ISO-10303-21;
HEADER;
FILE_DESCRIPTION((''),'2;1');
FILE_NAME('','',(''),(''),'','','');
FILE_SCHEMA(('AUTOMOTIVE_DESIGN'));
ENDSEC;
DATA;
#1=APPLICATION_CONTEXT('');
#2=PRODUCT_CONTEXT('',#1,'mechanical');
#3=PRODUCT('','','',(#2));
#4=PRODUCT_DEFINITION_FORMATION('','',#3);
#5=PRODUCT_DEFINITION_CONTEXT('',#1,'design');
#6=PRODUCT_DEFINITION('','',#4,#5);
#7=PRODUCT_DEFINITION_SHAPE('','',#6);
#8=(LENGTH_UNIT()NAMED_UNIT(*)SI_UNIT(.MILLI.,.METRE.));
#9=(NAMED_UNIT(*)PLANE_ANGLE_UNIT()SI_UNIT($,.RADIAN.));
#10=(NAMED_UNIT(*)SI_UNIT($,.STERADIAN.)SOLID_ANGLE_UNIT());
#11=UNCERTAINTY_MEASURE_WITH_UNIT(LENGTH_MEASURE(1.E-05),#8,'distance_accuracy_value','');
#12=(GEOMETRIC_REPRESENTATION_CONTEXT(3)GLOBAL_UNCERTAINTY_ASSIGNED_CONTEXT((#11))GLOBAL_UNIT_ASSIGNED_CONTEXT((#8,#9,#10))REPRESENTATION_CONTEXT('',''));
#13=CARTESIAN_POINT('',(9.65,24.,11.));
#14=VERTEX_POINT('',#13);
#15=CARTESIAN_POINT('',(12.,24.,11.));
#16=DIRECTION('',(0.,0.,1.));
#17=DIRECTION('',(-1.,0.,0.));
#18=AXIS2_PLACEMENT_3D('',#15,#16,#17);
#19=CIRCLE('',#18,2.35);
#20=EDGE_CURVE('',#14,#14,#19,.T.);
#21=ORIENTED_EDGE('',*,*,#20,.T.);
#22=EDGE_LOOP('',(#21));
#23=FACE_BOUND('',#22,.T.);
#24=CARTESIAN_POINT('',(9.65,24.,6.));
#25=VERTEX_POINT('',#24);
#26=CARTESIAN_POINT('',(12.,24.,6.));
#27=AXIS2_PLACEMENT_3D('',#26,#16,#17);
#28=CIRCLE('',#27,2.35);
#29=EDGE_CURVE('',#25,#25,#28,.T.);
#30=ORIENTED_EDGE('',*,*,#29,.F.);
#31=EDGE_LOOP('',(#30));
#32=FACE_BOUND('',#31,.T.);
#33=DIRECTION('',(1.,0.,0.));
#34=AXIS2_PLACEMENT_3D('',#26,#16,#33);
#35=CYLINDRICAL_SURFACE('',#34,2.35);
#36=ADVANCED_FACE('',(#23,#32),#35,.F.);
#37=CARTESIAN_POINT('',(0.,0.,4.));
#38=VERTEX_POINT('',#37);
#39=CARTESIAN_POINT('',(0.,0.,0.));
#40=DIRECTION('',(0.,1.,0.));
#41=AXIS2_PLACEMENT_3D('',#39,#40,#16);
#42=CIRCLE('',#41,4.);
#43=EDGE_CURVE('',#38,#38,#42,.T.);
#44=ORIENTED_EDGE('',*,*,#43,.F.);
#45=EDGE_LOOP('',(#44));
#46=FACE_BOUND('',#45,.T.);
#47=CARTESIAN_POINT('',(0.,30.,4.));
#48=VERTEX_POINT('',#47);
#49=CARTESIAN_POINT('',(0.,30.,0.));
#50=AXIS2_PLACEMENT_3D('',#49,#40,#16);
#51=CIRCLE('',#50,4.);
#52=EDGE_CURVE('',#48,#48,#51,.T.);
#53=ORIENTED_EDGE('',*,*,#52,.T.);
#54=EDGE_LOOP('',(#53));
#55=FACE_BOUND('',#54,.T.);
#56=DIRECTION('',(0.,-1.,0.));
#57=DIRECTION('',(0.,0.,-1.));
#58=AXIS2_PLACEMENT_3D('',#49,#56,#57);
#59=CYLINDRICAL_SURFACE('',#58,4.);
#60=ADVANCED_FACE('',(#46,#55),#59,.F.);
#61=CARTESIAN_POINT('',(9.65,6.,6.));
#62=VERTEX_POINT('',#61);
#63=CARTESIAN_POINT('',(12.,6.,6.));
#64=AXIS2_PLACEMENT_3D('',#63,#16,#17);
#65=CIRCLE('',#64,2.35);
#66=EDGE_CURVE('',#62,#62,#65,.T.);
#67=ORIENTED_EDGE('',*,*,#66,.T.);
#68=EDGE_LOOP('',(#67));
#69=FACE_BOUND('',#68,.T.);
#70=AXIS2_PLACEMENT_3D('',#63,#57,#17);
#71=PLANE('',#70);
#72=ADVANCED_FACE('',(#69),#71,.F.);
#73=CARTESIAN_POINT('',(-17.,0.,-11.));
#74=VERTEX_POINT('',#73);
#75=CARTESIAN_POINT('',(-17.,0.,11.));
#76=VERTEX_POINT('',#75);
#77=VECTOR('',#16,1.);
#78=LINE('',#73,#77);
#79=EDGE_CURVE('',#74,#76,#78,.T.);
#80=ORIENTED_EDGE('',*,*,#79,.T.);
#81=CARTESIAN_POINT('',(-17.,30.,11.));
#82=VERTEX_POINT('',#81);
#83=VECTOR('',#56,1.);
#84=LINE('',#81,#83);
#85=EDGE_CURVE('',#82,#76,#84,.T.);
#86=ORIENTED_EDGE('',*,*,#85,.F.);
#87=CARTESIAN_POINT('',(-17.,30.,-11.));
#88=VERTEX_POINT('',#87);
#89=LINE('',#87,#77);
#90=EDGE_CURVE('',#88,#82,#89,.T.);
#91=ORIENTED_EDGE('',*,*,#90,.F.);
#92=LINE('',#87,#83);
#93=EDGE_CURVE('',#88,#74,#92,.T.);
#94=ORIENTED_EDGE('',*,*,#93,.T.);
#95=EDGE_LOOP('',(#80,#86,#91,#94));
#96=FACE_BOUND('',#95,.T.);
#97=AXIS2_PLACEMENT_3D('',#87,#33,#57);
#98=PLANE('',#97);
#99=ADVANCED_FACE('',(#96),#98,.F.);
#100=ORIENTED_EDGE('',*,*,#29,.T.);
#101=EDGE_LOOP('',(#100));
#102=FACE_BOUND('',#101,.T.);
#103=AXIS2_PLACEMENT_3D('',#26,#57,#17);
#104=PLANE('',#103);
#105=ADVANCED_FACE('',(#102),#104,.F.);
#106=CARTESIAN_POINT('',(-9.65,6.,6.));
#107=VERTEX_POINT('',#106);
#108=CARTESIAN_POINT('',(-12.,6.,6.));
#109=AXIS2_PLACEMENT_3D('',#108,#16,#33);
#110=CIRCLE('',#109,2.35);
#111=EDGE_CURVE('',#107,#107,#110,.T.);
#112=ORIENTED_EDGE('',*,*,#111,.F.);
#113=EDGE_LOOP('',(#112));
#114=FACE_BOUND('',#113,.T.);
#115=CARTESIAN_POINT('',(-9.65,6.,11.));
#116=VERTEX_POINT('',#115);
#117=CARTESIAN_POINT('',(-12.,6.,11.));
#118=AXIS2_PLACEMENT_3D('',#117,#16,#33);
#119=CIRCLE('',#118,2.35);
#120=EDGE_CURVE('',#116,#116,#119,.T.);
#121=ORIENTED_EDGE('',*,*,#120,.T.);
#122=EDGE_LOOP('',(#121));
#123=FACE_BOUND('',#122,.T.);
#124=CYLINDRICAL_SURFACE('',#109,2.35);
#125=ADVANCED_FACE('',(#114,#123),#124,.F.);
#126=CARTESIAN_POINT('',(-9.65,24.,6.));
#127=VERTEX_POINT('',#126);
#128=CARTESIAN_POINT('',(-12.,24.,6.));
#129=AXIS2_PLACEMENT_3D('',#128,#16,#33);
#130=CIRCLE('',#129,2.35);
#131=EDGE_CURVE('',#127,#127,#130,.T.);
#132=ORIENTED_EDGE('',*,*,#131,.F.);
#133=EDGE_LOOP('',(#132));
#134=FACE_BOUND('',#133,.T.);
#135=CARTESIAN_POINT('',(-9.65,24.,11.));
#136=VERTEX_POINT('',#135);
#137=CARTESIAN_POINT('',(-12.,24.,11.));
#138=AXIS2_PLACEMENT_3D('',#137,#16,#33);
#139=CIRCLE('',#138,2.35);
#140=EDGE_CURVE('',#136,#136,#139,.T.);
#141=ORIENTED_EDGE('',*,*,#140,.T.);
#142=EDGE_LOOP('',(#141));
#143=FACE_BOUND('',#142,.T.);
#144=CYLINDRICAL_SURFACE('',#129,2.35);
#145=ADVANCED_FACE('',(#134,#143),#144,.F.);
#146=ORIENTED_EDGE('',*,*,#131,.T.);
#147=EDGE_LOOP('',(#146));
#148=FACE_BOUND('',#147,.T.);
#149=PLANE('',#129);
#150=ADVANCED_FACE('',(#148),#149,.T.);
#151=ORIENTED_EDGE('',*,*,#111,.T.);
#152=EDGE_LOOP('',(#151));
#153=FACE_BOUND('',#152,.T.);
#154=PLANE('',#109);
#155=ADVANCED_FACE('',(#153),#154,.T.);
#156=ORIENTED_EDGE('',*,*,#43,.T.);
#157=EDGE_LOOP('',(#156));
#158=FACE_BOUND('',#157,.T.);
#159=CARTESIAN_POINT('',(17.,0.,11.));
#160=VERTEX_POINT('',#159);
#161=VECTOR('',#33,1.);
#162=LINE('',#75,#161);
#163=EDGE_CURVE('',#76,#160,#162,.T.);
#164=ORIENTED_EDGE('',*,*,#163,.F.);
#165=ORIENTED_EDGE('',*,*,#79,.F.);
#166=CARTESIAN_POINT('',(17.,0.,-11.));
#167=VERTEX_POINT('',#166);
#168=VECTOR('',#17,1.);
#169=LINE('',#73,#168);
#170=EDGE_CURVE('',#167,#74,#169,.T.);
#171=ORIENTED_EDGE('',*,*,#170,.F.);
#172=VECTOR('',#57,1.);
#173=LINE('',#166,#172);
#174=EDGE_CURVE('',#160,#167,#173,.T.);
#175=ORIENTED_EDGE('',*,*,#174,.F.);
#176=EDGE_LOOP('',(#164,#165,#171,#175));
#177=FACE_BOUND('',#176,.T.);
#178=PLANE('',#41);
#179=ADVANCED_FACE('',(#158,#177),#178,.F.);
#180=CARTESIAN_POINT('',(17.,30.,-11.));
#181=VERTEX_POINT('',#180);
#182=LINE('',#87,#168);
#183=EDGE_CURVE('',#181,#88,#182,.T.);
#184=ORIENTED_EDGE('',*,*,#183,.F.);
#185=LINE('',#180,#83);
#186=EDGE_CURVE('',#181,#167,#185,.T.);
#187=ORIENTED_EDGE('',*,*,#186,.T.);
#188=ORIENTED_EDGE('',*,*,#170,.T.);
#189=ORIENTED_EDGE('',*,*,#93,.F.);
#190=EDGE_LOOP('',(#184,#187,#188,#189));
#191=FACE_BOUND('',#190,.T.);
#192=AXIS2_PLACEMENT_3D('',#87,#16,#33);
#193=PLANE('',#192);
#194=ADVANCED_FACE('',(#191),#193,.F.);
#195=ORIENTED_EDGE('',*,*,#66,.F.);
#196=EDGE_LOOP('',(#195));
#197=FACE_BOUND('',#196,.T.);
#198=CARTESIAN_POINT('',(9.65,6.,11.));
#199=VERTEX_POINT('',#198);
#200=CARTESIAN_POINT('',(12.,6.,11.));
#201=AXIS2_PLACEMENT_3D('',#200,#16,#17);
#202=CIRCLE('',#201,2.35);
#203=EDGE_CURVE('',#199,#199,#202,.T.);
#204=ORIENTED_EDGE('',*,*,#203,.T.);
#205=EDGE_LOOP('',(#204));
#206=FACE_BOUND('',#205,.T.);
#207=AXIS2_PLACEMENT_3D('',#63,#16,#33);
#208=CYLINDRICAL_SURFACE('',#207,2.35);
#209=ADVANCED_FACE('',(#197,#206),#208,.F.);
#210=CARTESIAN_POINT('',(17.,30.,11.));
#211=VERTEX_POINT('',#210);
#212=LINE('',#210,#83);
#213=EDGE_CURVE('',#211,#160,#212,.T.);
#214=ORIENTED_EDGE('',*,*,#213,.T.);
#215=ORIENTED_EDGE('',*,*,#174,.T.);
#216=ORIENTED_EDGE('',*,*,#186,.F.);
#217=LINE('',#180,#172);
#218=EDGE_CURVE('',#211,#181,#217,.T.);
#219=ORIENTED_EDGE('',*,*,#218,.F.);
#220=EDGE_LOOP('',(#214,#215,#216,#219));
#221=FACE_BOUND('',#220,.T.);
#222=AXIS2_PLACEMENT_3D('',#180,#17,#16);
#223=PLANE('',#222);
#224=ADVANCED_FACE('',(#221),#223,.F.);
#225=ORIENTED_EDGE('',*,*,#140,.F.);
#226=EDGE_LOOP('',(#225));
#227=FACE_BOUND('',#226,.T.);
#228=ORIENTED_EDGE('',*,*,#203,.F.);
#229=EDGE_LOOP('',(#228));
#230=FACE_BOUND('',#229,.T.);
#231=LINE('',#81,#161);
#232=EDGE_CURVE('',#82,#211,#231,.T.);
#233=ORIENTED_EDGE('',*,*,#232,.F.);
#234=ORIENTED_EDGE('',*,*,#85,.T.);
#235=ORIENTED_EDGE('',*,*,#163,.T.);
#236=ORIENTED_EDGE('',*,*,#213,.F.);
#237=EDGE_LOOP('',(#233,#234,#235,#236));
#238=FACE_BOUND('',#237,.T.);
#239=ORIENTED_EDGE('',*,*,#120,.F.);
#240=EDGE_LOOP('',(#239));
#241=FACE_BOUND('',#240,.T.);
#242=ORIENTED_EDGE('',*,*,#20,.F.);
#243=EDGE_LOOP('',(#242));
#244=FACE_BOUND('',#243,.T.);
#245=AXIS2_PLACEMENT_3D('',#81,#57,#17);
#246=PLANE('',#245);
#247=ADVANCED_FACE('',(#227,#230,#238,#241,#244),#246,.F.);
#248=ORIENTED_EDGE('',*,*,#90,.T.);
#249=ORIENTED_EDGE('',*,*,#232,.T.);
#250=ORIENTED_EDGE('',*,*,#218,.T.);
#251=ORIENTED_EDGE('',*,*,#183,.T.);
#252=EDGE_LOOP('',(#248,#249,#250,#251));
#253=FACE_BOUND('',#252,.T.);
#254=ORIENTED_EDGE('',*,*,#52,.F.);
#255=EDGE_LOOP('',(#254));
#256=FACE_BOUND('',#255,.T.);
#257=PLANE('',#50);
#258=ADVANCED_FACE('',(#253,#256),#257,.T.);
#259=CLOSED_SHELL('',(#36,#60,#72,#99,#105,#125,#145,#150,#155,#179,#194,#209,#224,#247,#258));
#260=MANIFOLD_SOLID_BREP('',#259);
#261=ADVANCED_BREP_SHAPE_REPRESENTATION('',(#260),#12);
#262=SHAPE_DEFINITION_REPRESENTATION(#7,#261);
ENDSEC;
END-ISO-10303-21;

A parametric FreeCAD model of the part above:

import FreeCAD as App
import Part
import Sketcher
from FreeCAD import Vector

doc = App.newDocument("Part")
body = doc.addObject("PartDesign::Body", "Body")

# Sketch on XZ plane
sketch1 = doc.addObject("Sketcher::SketchObject", "Sketch")
body.addObject(sketch1)
sketch1.AttachmentSupport = (doc.XZ_Plane, [""])
sketch1.MapMode = "FlatFace"
sketch1.addGeometry([
    Part.LineSegment(Vector(-17, -11, 0), Vector(-17, 11, 0)),  # 0
    Part.LineSegment(Vector(-17, 11, 0), Vector(17, 11, 0)),  # 1
    Part.LineSegment(Vector(17, 11, 0), Vector(17, -11, 0)),  # 2
    Part.LineSegment(Vector(17, -11, 0), Vector(-17, -11, 0)),  # 3
    Part.Circle(Vector(0, 0, 0), Vector(0, 0, 1), 4),  # 4
], False)
sketch1.addConstraint([
    Sketcher.Constraint("Coincident", 0, 2, 1, 1),
    Sketcher.Constraint("Coincident", 1, 2, 2, 1),
    Sketcher.Constraint("Coincident", 2, 2, 3, 1),
    Sketcher.Constraint("Coincident", 3, 2, 0, 1),
    Sketcher.Constraint("Vertical", 0),
    Sketcher.Constraint("Horizontal", 1),
    Sketcher.Constraint("Vertical", 2),
    Sketcher.Constraint("Horizontal", 3),
    Sketcher.Constraint("Coincident", 4, 3, -1, 1),
    Sketcher.Constraint("Symmetric", 0, 2, 2, 2, -1, 1),
    Sketcher.Constraint("Diameter", 4, 8.0),
    Sketcher.Constraint("DistanceX", 1, 1, 1, 2, 34.0),
    Sketcher.Constraint("DistanceY", 0, 1, 0, 2, 22.0),
])
pad1 = doc.addObject("PartDesign::Pad", "Pad")
body.addObject(pad1)
pad1.Profile = sketch1
pad1.Length = 30
pad1.Reversed = True

# Sketch on XY plane
sketch2 = doc.addObject("Sketcher::SketchObject", "Sketch001")
body.addObject(sketch2)
sketch2.AttachmentSupport = (doc.XY_Plane, [""])
sketch2.MapMode = "FlatFace"
sketch2.AttachmentOffset = App.Placement(Vector(0, 0, 11), App.Rotation())
sketch2.addGeometry([
    Part.Circle(Vector(-12, 24, 0), Vector(0, 0, 1), 2.4),
    Part.Circle(Vector(-12, 6, 0), Vector(0, 0, 1), 2.4),
    Part.Circle(Vector(12, 6, 0), Vector(0, 0, 1), 2.4),
    Part.Circle(Vector(12, 24, 0), Vector(0, 0, 1), 2.4),
], False)
sketch2.addConstraint([
    Sketcher.Constraint("Equal", 0, 1),
    Sketcher.Constraint("Equal", 1, 2),
    Sketcher.Constraint("Equal", 2, 3),
    Sketcher.Constraint("Symmetric", 1, 3, 2, 3, -2),
    Sketcher.Constraint("Symmetric", 0, 3, 3, 3, -2),
    Sketcher.Constraint("Vertical", 0, 3, 1, 3),
    Sketcher.Constraint("Diameter", 0, 4.7),
    Sketcher.Constraint("DistanceX", 0, 3, -1, 1, 12.0),
    Sketcher.Constraint("DistanceY", -1, 1, 0, 3, 24.0),
    Sketcher.Constraint("DistanceY", -1, 1, 1, 3, 6.0),
])
pocket1 = doc.addObject("PartDesign::Pocket", "Pocket")
body.addObject(pocket1)
pocket1.Profile = sketch2
pocket1.Length = 5

doc.recompute()
